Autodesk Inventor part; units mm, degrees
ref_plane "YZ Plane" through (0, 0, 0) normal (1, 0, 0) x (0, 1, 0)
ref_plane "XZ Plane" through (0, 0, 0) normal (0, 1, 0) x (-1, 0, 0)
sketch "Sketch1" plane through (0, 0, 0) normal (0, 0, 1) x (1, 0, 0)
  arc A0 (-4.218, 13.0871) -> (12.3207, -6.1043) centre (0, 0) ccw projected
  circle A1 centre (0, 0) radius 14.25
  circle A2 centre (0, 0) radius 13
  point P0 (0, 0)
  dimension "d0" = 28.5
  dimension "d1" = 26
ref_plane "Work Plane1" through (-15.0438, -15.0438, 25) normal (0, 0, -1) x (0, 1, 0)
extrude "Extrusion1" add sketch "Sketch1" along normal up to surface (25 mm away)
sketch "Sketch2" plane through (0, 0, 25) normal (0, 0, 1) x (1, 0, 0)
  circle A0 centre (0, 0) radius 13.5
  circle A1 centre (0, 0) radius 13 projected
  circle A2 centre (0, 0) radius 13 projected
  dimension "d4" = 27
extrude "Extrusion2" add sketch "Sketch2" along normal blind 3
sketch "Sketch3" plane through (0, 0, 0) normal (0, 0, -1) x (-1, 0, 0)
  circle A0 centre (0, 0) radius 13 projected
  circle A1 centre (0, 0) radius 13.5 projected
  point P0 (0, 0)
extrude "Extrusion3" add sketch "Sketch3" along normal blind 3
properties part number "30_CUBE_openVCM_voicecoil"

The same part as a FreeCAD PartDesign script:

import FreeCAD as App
import Part
import Sketcher
from FreeCAD import Vector
Q = App.Units.Quantity

doc = App.newDocument("Part")
body = doc.addObject("PartDesign::Body", "Body")

sketch1 = body.newObject("Sketcher::SketchObject", "Sketch")
sketch1.AttachmentSupport = (doc.getObject("XY_Plane"), [""])
sketch1.MapMode = "FlatFace"
sketch1.addGeometry([
    Part.Circle(Vector(0, 0, 0), Vector(0, 0, 1), 14.25),
    Part.Circle(Vector(0, 0, 0), Vector(0, 0, 1), 13),
], False)
sketch1.addConstraint([
    Sketcher.Constraint("Coincident", 0, 3, -1, 1),
    Sketcher.Constraint("Coincident", 1, 3, -1, 1),
    Sketcher.Constraint("Diameter", 1, Q("26 mm")),
    Sketcher.Constraint("Diameter", 0, Q("28.5 mm")),
])
pad1 = body.newObject("PartDesign::Pad", "Pad")
pad1.Profile = sketch1
pad1.Length = 25

sketch2 = body.newObject("Sketcher::SketchObject", "Sketch001")
sketch2.AttachmentSupport = (doc.getObject("XY_Plane"), [""])
sketch2.MapMode = "FlatFace"
sketch2.AttachmentOffset = App.Placement(Vector(0, 0, 25), App.Rotation())
sketch2.addGeometry([
    Part.Circle(Vector(0, 0, 0), Vector(0, 0, 1), 13.5),
    Part.Circle(Vector(0, 0, 0), Vector(0, 0, 1), 13),
], False)
sketch2.addConstraint([
    Sketcher.Constraint("Coincident", 0, 3, -1, 1),
    Sketcher.Constraint("Coincident", 1, 3, -1, 1),
    Sketcher.Constraint("Diameter", 0, Q("27 mm")),
    Sketcher.Constraint("Diameter", 1, Q("26 mm")),
])
pad2 = body.newObject("PartDesign::Pad", "Pad001")
pad2.Profile = sketch2
pad2.Length = 3

sketch3 = body.newObject("Sketcher::SketchObject", "Sketch002")
sketch3.AttachmentSupport = (doc.getObject("XY_Plane"), [""])
sketch3.MapMode = "FlatFace"
sketch3.addGeometry([
    Part.Circle(Vector(0, 0, 0), Vector(0, 0, 1), 13.5),
    Part.Circle(Vector(0, 0, 0), Vector(0, 0, 1), 13),
], False)
sketch3.addConstraint([
    Sketcher.Constraint("Coincident", 0, 3, -1, 1),
    Sketcher.Constraint("Coincident", 1, 3, -1, 1),
    Sketcher.Constraint("Diameter", 0, Q("27 mm")),
    Sketcher.Constraint("Diameter", 1, Q("26 mm")),
])
pad3 = body.newObject("PartDesign::Pad", "Pad002")
pad3.Profile = sketch3
pad3.Length = 3
pad3.Reversed = True

doc.recompute()
